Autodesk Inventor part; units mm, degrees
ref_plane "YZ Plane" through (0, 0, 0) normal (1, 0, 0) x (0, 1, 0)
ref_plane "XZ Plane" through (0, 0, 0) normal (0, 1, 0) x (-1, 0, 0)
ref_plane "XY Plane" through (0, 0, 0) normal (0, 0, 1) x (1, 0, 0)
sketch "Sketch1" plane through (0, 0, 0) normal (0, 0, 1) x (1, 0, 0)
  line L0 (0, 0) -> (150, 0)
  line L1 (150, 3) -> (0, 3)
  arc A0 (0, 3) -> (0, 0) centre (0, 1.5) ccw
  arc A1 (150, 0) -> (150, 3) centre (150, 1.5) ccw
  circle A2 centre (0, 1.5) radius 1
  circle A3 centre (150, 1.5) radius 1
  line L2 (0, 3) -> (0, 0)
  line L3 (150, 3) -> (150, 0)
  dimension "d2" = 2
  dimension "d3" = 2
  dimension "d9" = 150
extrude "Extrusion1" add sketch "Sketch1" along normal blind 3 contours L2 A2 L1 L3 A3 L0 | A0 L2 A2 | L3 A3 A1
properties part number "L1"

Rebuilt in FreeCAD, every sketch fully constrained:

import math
import FreeCAD as App
import Part
import Sketcher
from FreeCAD import Vector
Q = App.Units.Quantity

doc = App.newDocument("Part")
params = doc.addObject("Spreadsheet::Sheet", "Params")
for row, (alias, value) in enumerate([
    ("sketch1_diameter", "2 mm"),
    ("sketch1_width", "150 mm"),
    ("sketch1_radius", "1.5 mm"),
    ("pad1_length", "3 mm"),
], start=1):
    params.set(f"A{row}", alias)
    params.set(f"B{row}", "=" + value)
    params.setAlias(f"B{row}", alias)

body = doc.addObject("PartDesign::Body", "Body")

# Sketch on XY plane
sketch1 = body.newObject("Sketcher::SketchObject", "Sketch")
sketch1.AttachmentSupport = (doc.getObject("XY_Plane"), [""])
sketch1.MapMode = "FlatFace"
sketch1.addGeometry([
    Part.LineSegment(Vector(150, 3, 0), Vector(0, 3, 0)),  # 0
    Part.ArcOfCircle(Part.Circle(Vector(0, 1.5, 0), Vector(0, 0, 1), 1.5), math.radians(90), math.radians(270)),  # 1
    Part.LineSegment(Vector(0, 0, 0), Vector(150, 0, 0)),  # 2
    Part.ArcOfCircle(Part.Circle(Vector(150, 1.5, 0), Vector(0, 0, 1), 1.5), math.radians(-90), math.radians(90)),  # 3
    Part.Circle(Vector(0, 1.5, 0), Vector(0, 0, 1), 1),  # 4
    Part.Circle(Vector(150, 1.5, 0), Vector(0, 0, 1), 1),  # 5
], False)
sketch1.addConstraint([
    Sketcher.Constraint("Tangent", 0, 2, 1, 1),
    Sketcher.Constraint("Tangent", 1, 2, 2, 1),
    Sketcher.Constraint("Tangent", 2, 2, 3, 1),
    Sketcher.Constraint("Tangent", 3, 2, 0, 1),
    Sketcher.Constraint("Horizontal", 0),
    Sketcher.Constraint("Horizontal", 2),
    Sketcher.Constraint("Coincident", 1, 2, -1, 1),
    Sketcher.Constraint("Coincident", 4, 3, 1, 3),
    Sketcher.Constraint("Coincident", 5, 3, 3, 3),
    Sketcher.Constraint("Equal", 4, 5),
    Sketcher.Constraint("Diameter", 4, Q("2 mm")),
    Sketcher.Constraint("DistanceX", 0, 2, 0, 1, Q("150 mm")),
    Sketcher.Constraint("Radius", 1, Q("1.5 mm")),
])
sketch1.setExpression("Constraints[10]", "Params.sketch1_diameter")
sketch1.setExpression("Constraints[11]", "Params.sketch1_width")
sketch1.setExpression("Constraints[12]", "Params.sketch1_radius")
pad1 = body.newObject("PartDesign::Pad", "Pad")
pad1.Profile = sketch1
pad1.setExpression("Length", "Params.pad1_length")

doc.recompute()
